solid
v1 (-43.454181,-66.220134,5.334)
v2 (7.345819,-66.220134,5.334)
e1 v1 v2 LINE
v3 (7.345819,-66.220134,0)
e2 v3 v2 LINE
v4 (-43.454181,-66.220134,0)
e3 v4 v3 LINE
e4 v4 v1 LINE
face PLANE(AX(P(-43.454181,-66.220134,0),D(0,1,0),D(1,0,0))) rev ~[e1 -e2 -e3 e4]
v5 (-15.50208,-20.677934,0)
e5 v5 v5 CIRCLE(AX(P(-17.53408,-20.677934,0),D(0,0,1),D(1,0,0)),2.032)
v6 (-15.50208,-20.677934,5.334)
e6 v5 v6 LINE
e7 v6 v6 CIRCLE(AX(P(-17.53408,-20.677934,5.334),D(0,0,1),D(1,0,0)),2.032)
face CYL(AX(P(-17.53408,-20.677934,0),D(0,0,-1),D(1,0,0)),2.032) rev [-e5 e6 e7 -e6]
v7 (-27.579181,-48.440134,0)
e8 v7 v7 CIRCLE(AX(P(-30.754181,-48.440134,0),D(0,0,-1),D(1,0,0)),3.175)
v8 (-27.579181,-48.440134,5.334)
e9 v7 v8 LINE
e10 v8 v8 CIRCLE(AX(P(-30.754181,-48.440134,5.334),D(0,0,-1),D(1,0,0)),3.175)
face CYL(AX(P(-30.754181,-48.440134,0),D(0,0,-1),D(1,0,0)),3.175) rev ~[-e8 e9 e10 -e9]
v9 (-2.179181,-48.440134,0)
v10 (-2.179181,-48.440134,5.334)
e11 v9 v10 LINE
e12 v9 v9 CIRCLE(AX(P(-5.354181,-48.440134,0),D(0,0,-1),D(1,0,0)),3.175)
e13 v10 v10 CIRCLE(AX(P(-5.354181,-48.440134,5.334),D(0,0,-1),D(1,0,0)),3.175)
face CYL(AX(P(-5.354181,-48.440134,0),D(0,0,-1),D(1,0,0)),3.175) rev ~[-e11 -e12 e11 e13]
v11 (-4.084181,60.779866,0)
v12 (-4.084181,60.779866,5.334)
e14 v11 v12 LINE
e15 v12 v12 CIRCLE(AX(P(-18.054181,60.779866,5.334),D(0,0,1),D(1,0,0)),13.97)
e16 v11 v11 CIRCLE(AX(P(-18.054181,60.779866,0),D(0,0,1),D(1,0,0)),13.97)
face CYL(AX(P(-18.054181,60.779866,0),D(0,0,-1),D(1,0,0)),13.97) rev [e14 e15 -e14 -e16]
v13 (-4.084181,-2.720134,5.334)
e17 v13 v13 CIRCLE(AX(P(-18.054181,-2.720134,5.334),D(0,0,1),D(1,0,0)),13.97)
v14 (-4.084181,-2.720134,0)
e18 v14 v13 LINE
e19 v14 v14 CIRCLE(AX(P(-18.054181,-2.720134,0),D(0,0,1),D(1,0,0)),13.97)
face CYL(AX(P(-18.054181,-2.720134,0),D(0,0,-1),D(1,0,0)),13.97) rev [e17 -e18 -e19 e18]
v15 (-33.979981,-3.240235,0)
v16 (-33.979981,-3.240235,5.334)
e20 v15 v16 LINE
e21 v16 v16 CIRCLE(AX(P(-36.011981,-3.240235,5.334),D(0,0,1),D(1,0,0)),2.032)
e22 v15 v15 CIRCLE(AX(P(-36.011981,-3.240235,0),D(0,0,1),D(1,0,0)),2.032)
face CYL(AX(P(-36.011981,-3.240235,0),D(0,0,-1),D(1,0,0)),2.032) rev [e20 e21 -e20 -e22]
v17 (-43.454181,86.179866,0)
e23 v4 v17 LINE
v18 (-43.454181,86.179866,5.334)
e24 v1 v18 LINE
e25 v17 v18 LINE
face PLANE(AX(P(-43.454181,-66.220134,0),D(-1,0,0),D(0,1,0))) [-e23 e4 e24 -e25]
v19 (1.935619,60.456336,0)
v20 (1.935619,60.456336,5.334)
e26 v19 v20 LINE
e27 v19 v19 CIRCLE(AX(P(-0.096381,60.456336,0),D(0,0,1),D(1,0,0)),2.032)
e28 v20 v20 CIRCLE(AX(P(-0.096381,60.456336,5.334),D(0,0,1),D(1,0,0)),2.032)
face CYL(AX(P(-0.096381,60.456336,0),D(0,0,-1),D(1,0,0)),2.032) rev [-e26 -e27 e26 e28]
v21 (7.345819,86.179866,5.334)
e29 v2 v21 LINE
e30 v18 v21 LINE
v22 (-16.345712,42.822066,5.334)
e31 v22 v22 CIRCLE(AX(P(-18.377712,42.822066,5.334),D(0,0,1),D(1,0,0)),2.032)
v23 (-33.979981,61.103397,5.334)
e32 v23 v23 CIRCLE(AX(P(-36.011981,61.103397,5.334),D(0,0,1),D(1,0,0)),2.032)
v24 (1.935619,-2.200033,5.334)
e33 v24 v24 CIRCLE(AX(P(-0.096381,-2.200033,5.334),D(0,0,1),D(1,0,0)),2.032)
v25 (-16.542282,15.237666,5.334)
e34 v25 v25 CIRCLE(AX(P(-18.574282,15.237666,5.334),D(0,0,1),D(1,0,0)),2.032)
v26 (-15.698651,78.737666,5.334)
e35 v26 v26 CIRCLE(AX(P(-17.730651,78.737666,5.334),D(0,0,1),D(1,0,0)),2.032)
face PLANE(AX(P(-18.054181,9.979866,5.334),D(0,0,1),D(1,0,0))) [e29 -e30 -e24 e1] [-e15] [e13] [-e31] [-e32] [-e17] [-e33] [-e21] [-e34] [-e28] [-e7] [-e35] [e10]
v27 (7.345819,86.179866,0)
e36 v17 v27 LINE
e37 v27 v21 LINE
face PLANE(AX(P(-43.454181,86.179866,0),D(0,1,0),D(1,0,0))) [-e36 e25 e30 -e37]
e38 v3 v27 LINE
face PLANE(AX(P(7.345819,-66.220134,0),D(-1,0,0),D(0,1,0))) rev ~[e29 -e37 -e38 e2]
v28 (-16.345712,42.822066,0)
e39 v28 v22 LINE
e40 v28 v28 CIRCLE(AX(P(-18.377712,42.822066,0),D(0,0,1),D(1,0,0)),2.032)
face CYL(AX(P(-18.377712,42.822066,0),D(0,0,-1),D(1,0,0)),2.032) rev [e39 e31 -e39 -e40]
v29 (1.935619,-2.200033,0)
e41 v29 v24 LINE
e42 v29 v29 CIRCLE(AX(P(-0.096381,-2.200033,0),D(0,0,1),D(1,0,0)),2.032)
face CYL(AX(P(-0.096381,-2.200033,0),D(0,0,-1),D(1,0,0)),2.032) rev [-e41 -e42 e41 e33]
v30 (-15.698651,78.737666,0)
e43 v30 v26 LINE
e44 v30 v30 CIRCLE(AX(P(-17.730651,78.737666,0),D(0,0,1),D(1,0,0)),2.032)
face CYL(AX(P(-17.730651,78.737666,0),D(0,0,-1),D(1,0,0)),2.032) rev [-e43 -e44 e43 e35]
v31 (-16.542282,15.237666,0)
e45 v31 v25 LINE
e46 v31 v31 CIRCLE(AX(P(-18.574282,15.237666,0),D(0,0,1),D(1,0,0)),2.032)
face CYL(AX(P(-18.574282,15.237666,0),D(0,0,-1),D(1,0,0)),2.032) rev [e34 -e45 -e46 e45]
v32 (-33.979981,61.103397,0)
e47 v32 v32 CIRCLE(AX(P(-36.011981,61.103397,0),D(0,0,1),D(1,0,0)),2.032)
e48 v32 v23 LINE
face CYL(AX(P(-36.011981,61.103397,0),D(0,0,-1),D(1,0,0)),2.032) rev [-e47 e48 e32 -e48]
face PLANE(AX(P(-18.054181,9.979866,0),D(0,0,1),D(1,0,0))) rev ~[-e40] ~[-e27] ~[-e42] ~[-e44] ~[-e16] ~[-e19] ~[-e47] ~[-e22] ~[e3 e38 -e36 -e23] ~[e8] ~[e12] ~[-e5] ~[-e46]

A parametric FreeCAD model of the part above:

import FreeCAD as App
import Part
import Sketcher
Q = App.Units.Quantity


def add_polygon(sketch, points):
    """Adds a closed chain of lines whose ends are joined by coincident constraints."""
    first, n = sketch.GeometryCount, len(points)
    for a, b in zip(points, points[1:] + points[:1]):
        sketch.addGeometry(Part.LineSegment(App.Vector(*a, 0), App.Vector(*b, 0)), False)
    for i in range(n):
        sketch.addConstraint(Sketcher.Constraint("Coincident", first + i, 2, first + (i + 1) % n, 1))

doc = App.newDocument("Part")
body = doc.addObject("PartDesign::Body", "Body")

# Sketch on XY plane
sketch1 = body.newObject("Sketcher::SketchObject", "Sketch")
sketch1.AttachmentSupport = (doc.getObject("XY_Plane"), [""])
sketch1.MapMode = "FlatFace"
add_polygon(sketch1, [(-43.5, 86.2), (-43.5, -66.2), (7.3, -66.2), (7.3, 86.2)])  # lines 0-3
sketch1.addGeometry(Part.Circle(App.Vector(-36, -3.2, 0), App.Vector(0, 0, 1), 2), False)  # 4
sketch1.addGeometry(Part.Circle(App.Vector(-18.6, 15.2, 0), App.Vector(0, 0, 1), 2), False)  # 5
sketch1.addGeometry(Part.Circle(App.Vector(-17.5, -20.7, 0), App.Vector(0, 0, 1), 2), False)  # 6
sketch1.addGeometry(Part.Circle(App.Vector(-18.1, -2.7, 0), App.Vector(0, 0, 1), 14), False)  # 7
sketch1.addGeometry(Part.Circle(App.Vector(-0.1, -2.2, 0), App.Vector(0, 0, 1), 2), False)  # 8
sketch1.addGeometry(Part.Circle(App.Vector(-18.4, 42.8, 0), App.Vector(0, 0, 1), 2), False)  # 9
sketch1.addGeometry(Part.Circle(App.Vector(-36, 61.1, 0), App.Vector(0, 0, 1), 2), False)  # 10
sketch1.addGeometry(Part.Circle(App.Vector(-18.1, 60.8, 0), App.Vector(0, 0, 1), 14), False)  # 11
sketch1.addGeometry(Part.Circle(App.Vector(-17.7, 78.7, 0), App.Vector(0, 0, 1), 2), False)  # 12
sketch1.addGeometry(Part.Circle(App.Vector(-0.1, 60.5, 0), App.Vector(0, 0, 1), 2), False)  # 13
sketch1.addConstraint(Sketcher.Constraint("Vertical", 0))
sketch1.addConstraint(Sketcher.Constraint("Horizontal", 1))
sketch1.addConstraint(Sketcher.Constraint("Vertical", 2))
sketch1.addConstraint(Sketcher.Constraint("Horizontal", 3))
sketch1.addConstraint(Sketcher.Constraint("Equal", 4, 5))
sketch1.addConstraint(Sketcher.Constraint("Equal", 5, 6))
sketch1.addConstraint(Sketcher.Constraint("Equal", 6, 8))
sketch1.addConstraint(Sketcher.Constraint("Equal", 8, 9))
sketch1.addConstraint(Sketcher.Constraint("Equal", 9, 10))
sketch1.addConstraint(Sketcher.Constraint("Equal", 7, 11))
sketch1.addConstraint(Sketcher.Constraint("Equal", 10, 12))
sketch1.addConstraint(Sketcher.Constraint("Equal", 12, 13))
sketch1.addConstraint(Sketcher.Constraint("Vertical", 4, 3, 10, 3))
sketch1.addConstraint(Sketcher.Constraint("Vertical", 7, 3, 11, 3))
sketch1.addConstraint(Sketcher.Constraint("Vertical", 8, 3, 13, 3))
sketch1.addConstraint(Sketcher.Constraint("Diameter", 7, Q("1.1 in")))
sketch1.addConstraint(Sketcher.Constraint("Diameter", 4, Q("0.16 in")))
sketch1.addConstraint(Sketcher.Constraint("DistanceX", 1, 1, 1, 2, Q("2 in")))
sketch1.addConstraint(Sketcher.Constraint("DistanceY", 0, 2, 0, 1, Q("6 in")))
sketch1.addConstraint(Sketcher.Constraint("DistanceX", 0, 2, 7, 3, Q("1 in")))
sketch1.addConstraint(Sketcher.Constraint("DistanceY", 11, 3, 2, 2, Q("1 in")))
sketch1.addConstraint(Sketcher.Constraint("DistanceY", 6, 3, 9, 3, Q("2.5 in")))
sketch1.addConstraint(Sketcher.Constraint("DistanceY", 7, 3, 11, 3, Q("2.5 in")))
sketch1.addConstraint(Sketcher.Constraint("DistanceY", 5, 3, 12, 3, Q("2.5 in")))
sketch1.addConstraint(Sketcher.Constraint("DistanceY", 6, 3, 5, 3, Q("1.414 in")))
sketch1.addConstraint(Sketcher.Constraint("DistanceX", 4, 3, 7, 3, Q("0.707 in")))
sketch1.addConstraint(Sketcher.Constraint("DistanceY", 7, 3, 5, 3, Q("0.707 in")))
sketch1.addConstraint(Sketcher.Constraint("DistanceX", 7, 3, 8, 3, Q("0.707 in")))
sketch1.addConstraint(Sketcher.Constraint("DistanceX", 4, 3, 5, 3, 17.437699))
sketch1.addConstraint(Sketcher.Constraint("DistanceY", 4, 3, 5, 3, 18.477901))
sketch1.addConstraint(Sketcher.Constraint("DistanceX", 4, 3, 6, 3, 18.477901))
sketch1.addConstraint(Sketcher.Constraint("DistanceY", 7, 3, 8, 3, 0.520101))
sketch1.addConstraint(Sketcher.Constraint("DistanceX", 4, 3, -1, 1, 36.011981))
sketch1.addConstraint(Sketcher.Constraint("DistanceX", 9, 3, -1, 1, 18.377712))
sketch1.addConstraint(Sketcher.Constraint("DistanceX", 12, 3, -1, 1, 17.730651))
sketch1.addConstraint(Sketcher.Constraint("DistanceY", 9, 3, 10, 3, 18.281331))
sketch1.addConstraint(Sketcher.Constraint("DistanceY", 13, 3, 11, 3, 0.32353))
sketch1.addConstraint(Sketcher.Constraint("DistanceY", 4, 3, -1, 1, 3.240235))
pad1 = body.newObject("PartDesign::Pad", "Pad")
pad1.Profile = sketch1
pad1.Length = Q("0.21 in")

# Sketch on XY plane
sketch2 = body.newObject("Sketcher::SketchObject", "Sketch001")
sketch2.AttachmentSupport = (doc.getObject("XY_Plane"), [""])
sketch2.MapMode = "FlatFace"
sketch2.addGeometry(Part.Circle(App.Vector(-5.4, -48.4, 0), App.Vector(0, 0, 1), 3.2), False)
sketch2.addGeometry(Part.Circle(App.Vector(-30.8, -48.4, 0), App.Vector(0, 0, 1), 3.2), False)
sketch2.addConstraint(Sketcher.Constraint("Equal", 0, 1))
sketch2.addConstraint(Sketcher.Constraint("Horizontal", 0, 3, 1, 3))
sketch2.addConstraint(Sketcher.Constraint("Diameter", 0, Q("0.25 in")))
sketch2.addConstraint(Sketcher.Constraint("DistanceX", 1, 3, 0, 3, Q("1 in")))
sketch2.addConstraint(Sketcher.Constraint("DistanceX", 0, 3, -1, 1, 5.354181))
sketch2.addConstraint(Sketcher.Constraint("DistanceY", 0, 3, -1, 1, 48.440134))
pocket1 = body.newObject("PartDesign::Pocket", "Pocket")
pocket1.Profile = sketch2
pocket1.Length = Q("1 in")
pocket1.Reversed = True

doc.recompute()
